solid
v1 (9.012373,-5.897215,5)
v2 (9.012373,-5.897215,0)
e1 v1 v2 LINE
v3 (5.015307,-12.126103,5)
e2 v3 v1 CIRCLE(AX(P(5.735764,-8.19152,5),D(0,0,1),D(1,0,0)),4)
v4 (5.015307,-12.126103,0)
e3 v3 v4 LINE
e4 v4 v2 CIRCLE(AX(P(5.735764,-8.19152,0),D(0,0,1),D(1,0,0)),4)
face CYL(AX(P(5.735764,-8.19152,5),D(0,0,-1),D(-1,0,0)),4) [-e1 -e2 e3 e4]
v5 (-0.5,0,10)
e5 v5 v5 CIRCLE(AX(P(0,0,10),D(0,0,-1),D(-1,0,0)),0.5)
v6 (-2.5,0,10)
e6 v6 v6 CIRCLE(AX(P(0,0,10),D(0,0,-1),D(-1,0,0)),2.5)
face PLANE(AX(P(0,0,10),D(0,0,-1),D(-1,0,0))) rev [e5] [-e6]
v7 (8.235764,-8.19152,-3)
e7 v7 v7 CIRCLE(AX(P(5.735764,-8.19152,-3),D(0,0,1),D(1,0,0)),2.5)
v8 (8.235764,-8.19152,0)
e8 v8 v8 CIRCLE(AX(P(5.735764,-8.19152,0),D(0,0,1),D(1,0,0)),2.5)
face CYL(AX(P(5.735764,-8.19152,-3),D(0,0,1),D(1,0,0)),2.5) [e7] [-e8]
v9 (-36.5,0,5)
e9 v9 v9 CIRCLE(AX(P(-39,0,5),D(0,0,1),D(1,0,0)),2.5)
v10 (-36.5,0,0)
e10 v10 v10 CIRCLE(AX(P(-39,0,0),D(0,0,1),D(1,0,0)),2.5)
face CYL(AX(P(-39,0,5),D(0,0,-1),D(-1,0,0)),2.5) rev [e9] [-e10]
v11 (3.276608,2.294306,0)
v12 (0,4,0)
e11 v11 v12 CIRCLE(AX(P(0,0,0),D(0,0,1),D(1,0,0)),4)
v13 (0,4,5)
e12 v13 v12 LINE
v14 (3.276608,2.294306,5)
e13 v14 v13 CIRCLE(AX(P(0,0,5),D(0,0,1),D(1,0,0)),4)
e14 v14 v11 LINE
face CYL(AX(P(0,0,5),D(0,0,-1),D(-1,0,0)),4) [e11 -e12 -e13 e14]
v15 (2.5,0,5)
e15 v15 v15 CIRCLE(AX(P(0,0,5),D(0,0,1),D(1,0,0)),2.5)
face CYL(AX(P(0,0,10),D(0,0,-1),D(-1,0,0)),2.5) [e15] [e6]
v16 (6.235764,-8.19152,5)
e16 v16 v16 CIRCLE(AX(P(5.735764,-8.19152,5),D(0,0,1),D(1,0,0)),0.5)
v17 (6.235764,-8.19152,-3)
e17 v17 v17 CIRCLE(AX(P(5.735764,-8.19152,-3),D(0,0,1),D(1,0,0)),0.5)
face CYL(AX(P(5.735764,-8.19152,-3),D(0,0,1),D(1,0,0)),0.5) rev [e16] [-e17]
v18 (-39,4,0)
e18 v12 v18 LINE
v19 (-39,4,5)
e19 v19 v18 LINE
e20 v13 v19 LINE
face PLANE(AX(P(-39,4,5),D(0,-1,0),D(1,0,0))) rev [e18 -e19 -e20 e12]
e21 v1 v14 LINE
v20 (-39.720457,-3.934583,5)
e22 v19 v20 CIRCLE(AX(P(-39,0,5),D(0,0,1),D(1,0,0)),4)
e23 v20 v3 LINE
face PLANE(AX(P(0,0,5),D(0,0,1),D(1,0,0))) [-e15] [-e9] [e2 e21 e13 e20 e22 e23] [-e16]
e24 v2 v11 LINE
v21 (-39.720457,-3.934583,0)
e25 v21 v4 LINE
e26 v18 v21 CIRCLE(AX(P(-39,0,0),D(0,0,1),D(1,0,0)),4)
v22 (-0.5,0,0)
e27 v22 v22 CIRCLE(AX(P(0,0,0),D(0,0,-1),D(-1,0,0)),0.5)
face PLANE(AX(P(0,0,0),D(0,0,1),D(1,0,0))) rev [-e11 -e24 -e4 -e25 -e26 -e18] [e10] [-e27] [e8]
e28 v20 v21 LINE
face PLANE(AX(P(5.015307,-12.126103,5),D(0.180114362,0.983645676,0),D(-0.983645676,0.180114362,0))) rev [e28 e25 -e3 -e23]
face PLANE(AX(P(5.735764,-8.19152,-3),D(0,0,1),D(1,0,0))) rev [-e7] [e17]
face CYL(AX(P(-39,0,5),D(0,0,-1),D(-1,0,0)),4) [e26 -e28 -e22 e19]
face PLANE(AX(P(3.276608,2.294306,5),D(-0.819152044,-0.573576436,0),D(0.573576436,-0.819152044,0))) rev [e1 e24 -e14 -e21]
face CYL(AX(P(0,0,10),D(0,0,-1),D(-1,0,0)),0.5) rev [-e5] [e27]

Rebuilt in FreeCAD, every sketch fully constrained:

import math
import FreeCAD as App
import Part
import Sketcher
from FreeCAD import Vector
Q = App.Units.Quantity

doc = App.newDocument("Part")
body = doc.addObject("PartDesign::Body", "Body")

sketch1 = doc.addObject("Sketcher::SketchObject", "Sketch")
body.addObject(sketch1)
sketch1.AttachmentSupport = (doc.XY_Plane, [""])
sketch1.MapMode = "FlatFace"
sketch1.addGeometry([
    Part.LineSegment(Vector(0, 4, 0), Vector(-39, 4, 0)),
    Part.ArcOfCircle(Part.Circle(Vector(-39, 0, 0), Vector(0, 0, 1), 4), math.radians(90), math.radians(260)),
    Part.LineSegment(Vector(-39.7, -3.9, 0), Vector(5, -12.1, 0)),
    Part.ArcOfCircle(Part.Circle(Vector(5.7, -8.2, 0), Vector(0, 0, 1), 4), math.radians(-100), math.radians(35)),
    Part.LineSegment(Vector(9, -5.9, 0), Vector(3.3, 2.3, 0)),
    Part.ArcOfCircle(Part.Circle(Vector(0, 0, 0), Vector(0, 0, 1), 4), math.radians(35), math.radians(90)),
    Part.Circle(Vector(5.7, -8.2, 0), Vector(0, 0, 1), 2.5),
    Part.Circle(Vector(0, 0, 0), Vector(0, 0, 1), 2.5),
    Part.Circle(Vector(-39, 0, 0), Vector(0, 0, 1), 2.5),
], False)
sketch1.addConstraint([
    Sketcher.Constraint("Tangent", 0, 2, 1, 1),
    Sketcher.Constraint("Tangent", 1, 2, 2, 1),
    Sketcher.Constraint("Tangent", 2, 2, 3, 1),
    Sketcher.Constraint("Tangent", 3, 2, 4, 1),
    Sketcher.Constraint("Tangent", 4, 2, 5, 1),
    Sketcher.Constraint("Tangent", 5, 2, 0, 1),
    Sketcher.Constraint("Horizontal", 0),
    Sketcher.Constraint("Coincident", 5, 3, -1, 1),
    Sketcher.Constraint("Coincident", 7, 3, -1, 1),
    Sketcher.Constraint("Coincident", 6, 3, 3, 3),
    Sketcher.Constraint("Coincident", 8, 3, 1, 3),
    Sketcher.Constraint("Equal", 1, 3),
    Sketcher.Constraint("Equal", 3, 5),
    Sketcher.Constraint("Equal", 6, 7),
    Sketcher.Constraint("Equal", 7, 8),
    Sketcher.Constraint("Diameter", 6, Q("5 mm")),
    Sketcher.Constraint("Radius", 1, Q("4 mm")),
    Sketcher.Constraint("DistanceX", 0, 2, 0, 1, Q("39 mm")),
    Sketcher.Constraint("Angle", 4, Q("125 deg")),
    Sketcher.Constraint("Distance", 4, Q("10 mm")),
])
pad1 = doc.addObject("PartDesign::Pad", "Pad")
body.addObject(pad1)
pad1.Profile = sketch1
pad1.Length = 5

sketch2 = doc.addObject("Sketcher::SketchObject", "Sketch001")
body.addObject(sketch2)
sketch2.AttachmentSupport = (doc.XY_Plane, [""])
sketch2.MapMode = "FlatFace"
sketch2.AttachmentOffset = App.Placement(Vector(0, 0, -3), App.Rotation())
sketch2.addGeometry([
    Part.Circle(Vector(5.7, -8.2, 0), Vector(0, 0, 1), 2.5),
    Part.Circle(Vector(5.7, -8.2, 0), Vector(0, 0, 1), 0.5),
], False)
sketch2.addConstraint([
    Sketcher.Constraint("Coincident", 1, 3, 0, 3),
    Sketcher.Constraint("Diameter", 0, Q("5 mm")),
    Sketcher.Constraint("Diameter", 1, Q("1 mm")),
    Sketcher.Constraint("DistanceY", 0, 3, -1, 1, Q("8.19152 mm")),
    Sketcher.Constraint("DistanceX", -1, 1, 0, 3, Q("5.735764 mm")),
])
pad2 = doc.addObject("PartDesign::Pad", "Pad001")
body.addObject(pad2)
pad2.Profile = sketch2
pad2.Length = 8

sketch3 = doc.addObject("Sketcher::SketchObject", "Sketch002")
body.addObject(sketch3)
sketch3.AttachmentSupport = (doc.XY_Plane, [""])
sketch3.MapMode = "FlatFace"
sketch3.addGeometry([
    Part.Circle(Vector(0, 0, 0), Vector(0, 0, 1), 2.5),
    Part.Circle(Vector(0, 0, 0), Vector(0, 0, 1), 0.5),
], False)
sketch3.addConstraint([
    Sketcher.Constraint("Coincident", 0, 3, -1, 1),
    Sketcher.Constraint("Coincident", 1, 3, -1, 1),
    Sketcher.Constraint("Diameter", 0, Q("5 mm")),
    Sketcher.Constraint("Diameter", 1, Q("1 mm")),
])
pad3 = doc.addObject("PartDesign::Pad", "Pad002")
body.addObject(pad3)
pad3.Profile = sketch3
pad3.Length = 10

doc.recompute()
